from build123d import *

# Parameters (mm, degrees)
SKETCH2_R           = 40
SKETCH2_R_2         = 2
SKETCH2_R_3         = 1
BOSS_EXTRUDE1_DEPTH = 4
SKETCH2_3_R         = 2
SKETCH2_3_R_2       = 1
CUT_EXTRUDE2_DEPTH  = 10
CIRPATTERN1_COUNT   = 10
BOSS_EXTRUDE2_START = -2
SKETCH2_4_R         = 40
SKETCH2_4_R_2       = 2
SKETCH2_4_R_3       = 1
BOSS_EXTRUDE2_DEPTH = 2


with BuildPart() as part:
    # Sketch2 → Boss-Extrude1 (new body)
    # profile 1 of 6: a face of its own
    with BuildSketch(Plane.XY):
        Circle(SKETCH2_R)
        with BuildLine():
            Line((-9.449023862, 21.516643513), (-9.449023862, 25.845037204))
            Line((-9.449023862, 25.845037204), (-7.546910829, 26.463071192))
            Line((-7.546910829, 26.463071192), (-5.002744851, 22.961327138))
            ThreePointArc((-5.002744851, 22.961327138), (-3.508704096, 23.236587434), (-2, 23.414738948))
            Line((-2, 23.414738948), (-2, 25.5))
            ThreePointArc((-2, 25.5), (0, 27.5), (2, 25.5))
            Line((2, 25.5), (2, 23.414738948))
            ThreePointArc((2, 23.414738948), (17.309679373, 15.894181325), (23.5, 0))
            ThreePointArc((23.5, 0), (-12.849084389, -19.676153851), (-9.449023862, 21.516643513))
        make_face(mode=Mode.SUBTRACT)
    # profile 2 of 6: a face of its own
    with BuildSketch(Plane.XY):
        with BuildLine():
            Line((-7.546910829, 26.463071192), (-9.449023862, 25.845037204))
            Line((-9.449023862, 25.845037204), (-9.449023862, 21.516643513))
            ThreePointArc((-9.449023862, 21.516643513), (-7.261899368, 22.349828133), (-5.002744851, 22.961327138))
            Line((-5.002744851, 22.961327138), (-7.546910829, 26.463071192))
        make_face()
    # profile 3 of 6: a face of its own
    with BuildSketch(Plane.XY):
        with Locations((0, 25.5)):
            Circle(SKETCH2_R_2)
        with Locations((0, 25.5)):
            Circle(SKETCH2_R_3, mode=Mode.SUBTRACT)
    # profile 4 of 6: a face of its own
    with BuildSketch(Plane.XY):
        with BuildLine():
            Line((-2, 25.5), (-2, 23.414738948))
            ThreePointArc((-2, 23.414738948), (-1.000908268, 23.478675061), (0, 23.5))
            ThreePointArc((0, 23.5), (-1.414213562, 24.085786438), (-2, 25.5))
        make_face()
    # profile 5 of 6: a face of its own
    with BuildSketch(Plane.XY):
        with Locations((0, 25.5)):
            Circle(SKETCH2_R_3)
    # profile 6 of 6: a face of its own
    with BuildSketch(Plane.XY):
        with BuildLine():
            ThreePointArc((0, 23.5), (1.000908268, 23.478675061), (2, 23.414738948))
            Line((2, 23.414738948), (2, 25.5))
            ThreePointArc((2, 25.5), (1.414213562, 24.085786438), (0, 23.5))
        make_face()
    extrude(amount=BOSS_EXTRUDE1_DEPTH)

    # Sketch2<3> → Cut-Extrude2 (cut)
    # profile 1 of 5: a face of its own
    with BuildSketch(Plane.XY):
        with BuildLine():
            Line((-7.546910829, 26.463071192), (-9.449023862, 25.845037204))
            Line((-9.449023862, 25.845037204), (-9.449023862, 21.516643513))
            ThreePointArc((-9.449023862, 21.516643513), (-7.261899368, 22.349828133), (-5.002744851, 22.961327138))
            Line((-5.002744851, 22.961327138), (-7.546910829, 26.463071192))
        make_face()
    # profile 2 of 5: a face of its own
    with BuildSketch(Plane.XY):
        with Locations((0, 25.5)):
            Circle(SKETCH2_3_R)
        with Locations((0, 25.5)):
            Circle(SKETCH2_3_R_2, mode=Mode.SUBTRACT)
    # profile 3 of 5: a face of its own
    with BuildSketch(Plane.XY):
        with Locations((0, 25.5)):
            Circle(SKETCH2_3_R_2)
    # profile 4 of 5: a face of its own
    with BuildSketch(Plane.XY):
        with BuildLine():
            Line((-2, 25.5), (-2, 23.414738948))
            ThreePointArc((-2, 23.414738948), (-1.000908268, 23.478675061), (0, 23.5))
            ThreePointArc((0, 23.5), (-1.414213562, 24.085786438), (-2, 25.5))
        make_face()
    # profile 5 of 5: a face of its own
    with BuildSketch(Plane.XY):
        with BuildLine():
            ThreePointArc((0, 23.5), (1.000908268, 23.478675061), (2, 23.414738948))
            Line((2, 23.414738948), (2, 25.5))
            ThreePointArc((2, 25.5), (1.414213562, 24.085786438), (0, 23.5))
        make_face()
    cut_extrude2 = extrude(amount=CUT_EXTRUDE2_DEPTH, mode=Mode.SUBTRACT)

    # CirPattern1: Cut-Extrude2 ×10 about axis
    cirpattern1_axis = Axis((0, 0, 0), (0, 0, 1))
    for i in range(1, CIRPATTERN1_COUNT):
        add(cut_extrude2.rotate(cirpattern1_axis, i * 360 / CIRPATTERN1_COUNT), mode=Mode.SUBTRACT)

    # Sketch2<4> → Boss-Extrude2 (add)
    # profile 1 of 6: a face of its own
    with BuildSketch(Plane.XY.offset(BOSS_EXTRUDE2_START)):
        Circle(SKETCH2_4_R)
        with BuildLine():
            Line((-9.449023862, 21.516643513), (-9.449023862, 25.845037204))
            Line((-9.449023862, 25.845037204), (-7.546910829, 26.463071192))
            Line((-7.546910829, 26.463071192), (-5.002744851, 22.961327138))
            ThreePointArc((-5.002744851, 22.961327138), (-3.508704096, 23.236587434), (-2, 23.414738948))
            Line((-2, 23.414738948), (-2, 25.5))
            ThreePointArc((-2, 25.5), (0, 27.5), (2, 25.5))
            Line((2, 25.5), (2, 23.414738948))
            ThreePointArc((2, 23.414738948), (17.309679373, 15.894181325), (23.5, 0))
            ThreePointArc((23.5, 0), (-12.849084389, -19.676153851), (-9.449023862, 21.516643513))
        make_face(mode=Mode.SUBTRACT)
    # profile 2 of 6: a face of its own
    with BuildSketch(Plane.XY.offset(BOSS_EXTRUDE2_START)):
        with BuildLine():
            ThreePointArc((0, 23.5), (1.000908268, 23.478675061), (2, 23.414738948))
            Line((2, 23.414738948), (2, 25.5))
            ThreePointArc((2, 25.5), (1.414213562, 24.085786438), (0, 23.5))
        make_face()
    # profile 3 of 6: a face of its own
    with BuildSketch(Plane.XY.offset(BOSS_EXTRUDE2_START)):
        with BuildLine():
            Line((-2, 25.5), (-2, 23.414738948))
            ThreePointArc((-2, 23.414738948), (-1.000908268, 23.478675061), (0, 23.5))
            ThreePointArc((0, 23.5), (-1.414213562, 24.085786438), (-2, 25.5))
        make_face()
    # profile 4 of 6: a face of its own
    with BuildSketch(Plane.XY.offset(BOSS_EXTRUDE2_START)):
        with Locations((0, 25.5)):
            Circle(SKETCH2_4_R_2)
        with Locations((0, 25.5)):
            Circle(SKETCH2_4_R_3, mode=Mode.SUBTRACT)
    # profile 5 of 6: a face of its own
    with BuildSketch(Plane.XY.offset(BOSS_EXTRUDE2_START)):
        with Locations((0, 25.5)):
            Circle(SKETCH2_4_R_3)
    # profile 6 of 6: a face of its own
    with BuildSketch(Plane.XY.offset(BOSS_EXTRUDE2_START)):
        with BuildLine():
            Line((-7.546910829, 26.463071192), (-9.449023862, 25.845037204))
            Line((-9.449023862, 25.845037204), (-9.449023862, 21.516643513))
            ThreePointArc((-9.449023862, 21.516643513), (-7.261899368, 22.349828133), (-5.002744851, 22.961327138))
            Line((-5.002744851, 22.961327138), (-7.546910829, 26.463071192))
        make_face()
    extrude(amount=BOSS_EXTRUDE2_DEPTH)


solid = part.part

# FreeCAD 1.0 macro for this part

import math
import FreeCAD as App
import Part
import Sketcher

V = App.Vector
Q = App.Units.Quantity

doc = App.newDocument("Part")
params = doc.addObject("Spreadsheet::Sheet", "Params")
for row, (alias, value) in enumerate([
    ("sketch1_diameter", "80 mm"),
    ("sketch1_radius", "23.5 mm"),
    ("pad1_length", "4 mm"),
    ("sketch2_radius", "2 mm"),
    ("sketch2_radius2", "23.5 mm"),
    ("sketch2_length", "2 mm"),
    ("pocket1_length", "10 mm"),
    ("sketch3_diameter", "80 mm"),
    ("sketch3_radius", "23.5 mm"),
    ("pad2_length", "2 mm"),
], start=1):
    params.set(f"A{row}", alias)
    params.set(f"B{row}", "=" + value)
    params.setAlias(f"B{row}", alias)

body = doc.addObject("PartDesign::Body", "Body")

# Sketch on XY plane
sketch1 = body.newObject("Sketcher::SketchObject", "Sketch")
sketch1.AttachmentSupport = (doc.getObject("XY_Plane"), [""])
sketch1.MapMode = "FlatFace"
sketch1.addGeometry(Part.Circle(V(0, 0, 0), V(0, 0, 1), 40), False)
sketch1.addGeometry(Part.ArcOfCircle(Part.Circle(V(0, 0, 0), V(0, 0, 1), 23.5), math.radians(113.708657), math.radians(360)), False)
sketch1.addGeometry(Part.ArcOfCircle(Part.Circle(V(0, 0, 0), V(0, 0, 1), 23.5), math.radians(102.291343), math.radians(113.708657)), False)
sketch1.addGeometry(Part.ArcOfCircle(Part.Circle(V(0, 0, 0), V(0, 0, 1), 23.5), math.radians(94.882142), math.radians(102.291343)), False)
sketch1.addGeometry(Part.ArcOfCircle(Part.Circle(V(0, 0, 0), V(0, 0, 1), 23.5), math.radians(90), math.radians(94.882142)), False)
sketch1.addGeometry(Part.ArcOfCircle(Part.Circle(V(0, 0, 0), V(0, 0, 1), 23.5), math.radians(85.117858), math.radians(90)), False)
sketch1.addGeometry(Part.ArcOfCircle(Part.Circle(V(0, 0, 0), V(0, 0, 1), 23.5), math.radians(0), math.radians(85.117858)), False)
sketch1.addConstraint(Sketcher.Constraint("Tangent", 1, 1, 2, 2))
sketch1.addConstraint(Sketcher.Constraint("Tangent", 2, 1, 3, 2))
sketch1.addConstraint(Sketcher.Constraint("Tangent", 3, 1, 4, 2))
sketch1.addConstraint(Sketcher.Constraint("Tangent", 4, 1, 5, 2))
sketch1.addConstraint(Sketcher.Constraint("Tangent", 5, 1, 6, 2))
sketch1.addConstraint(Sketcher.Constraint("Tangent", 6, 1, 1, 2))
sketch1.addConstraint(Sketcher.Constraint("Coincident", 0, 3, -1, 1))
sketch1.addConstraint(Sketcher.Constraint("Coincident", 1, 3, -1, 1))
sketch1.addConstraint(Sketcher.Constraint("Coincident", 3, 3, -1, 1))
sketch1.addConstraint(Sketcher.Constraint("Equal", 3, 4))
sketch1.addConstraint(Sketcher.Constraint("PointOnObject", 4, 1, -2))
sketch1.addConstraint(Sketcher.Constraint("PointOnObject", 6, 1, -1))
sketch1.addConstraint(Sketcher.Constraint("Horizontal", 3, 1, 5, 1))
sketch1.addConstraint(Sketcher.Constraint("Diameter", 0, Q("80 mm")))
sketch1.addConstraint(Sketcher.Constraint("Radius", 1, Q("23.5 mm")))
sketch1.addConstraint(Sketcher.Constraint("DistanceX", 3, 1, -1, 1, Q("2 mm")))
sketch1.addConstraint(Sketcher.Constraint("DistanceX", 1, 1, 2, 1, Q("4.446279 mm")))
sketch1.addConstraint(Sketcher.Constraint("DistanceY", 2, 1, 3, 1, Q("0.453412 mm")))
sketch1.setExpression("Constraints[13]", "Params.sketch1_diameter")
sketch1.setExpression("Constraints[14]", "Params.sketch1_radius")
pad1 = body.newObject("PartDesign::Pad", "Pad")
pad1.Profile = sketch1
pad1.setExpression("Length", "Params.pad1_length")

# Sketch on XY plane
sketch2 = body.newObject("Sketcher::SketchObject", "Sketch001")
sketch2.AttachmentSupport = (doc.getObject("XY_Plane"), [""])
sketch2.MapMode = "FlatFace"
sketch2.addGeometry(Part.LineSegment(V(-7.546911, 26.463071, 0), V(-9.449024, 25.845037, 0)), False)
sketch2.addGeometry(Part.LineSegment(V(-9.449024, 25.845037, 0), V(-9.449024, 21.516644, 0)), False)
sketch2.addGeometry(Part.ArcOfCircle(Part.Circle(V(0, 0, 0), V(0, 0, 1), 23.5), math.radians(102.291343), math.radians(113.708657)), False)
sketch2.addGeometry(Part.LineSegment(V(-5.002745, 22.961327, 0), V(-7.546911, 26.463071, 0)), False)
sketch2.addGeometry(Part.ArcOfCircle(Part.Circle(V(0, 25.5, 0), V(0, 0, 1), 2), math.radians(0), math.radians(180)), False)
sketch2.addGeometry(Part.LineSegment(V(-2, 25.5, 0), V(-2, 23.414739, 0)), False)
sketch2.addGeometry(Part.ArcOfCircle(Part.Circle(V(0, 0, 0), V(0, 0, 1), 23.5), math.radians(90), math.radians(94.882142)), False)
sketch2.addGeometry(Part.ArcOfCircle(Part.Circle(V(0, 0, 0), V(0, 0, 1), 23.5), math.radians(85.117858), math.radians(90)), False)
sketch2.addGeometry(Part.LineSegment(V(2, 23.414739, 0), V(2, 25.5, 0)), False)
sketch2.addConstraint(Sketcher.Constraint("Coincident", 0, 2, 1, 1))
sketch2.addConstraint(Sketcher.Constraint("Coincident", 1, 2, 2, 2))
sketch2.addConstraint(Sketcher.Constraint("Coincident", 2, 1, 3, 1))
sketch2.addConstraint(Sketcher.Constraint("Coincident", 3, 2, 0, 1))
sketch2.addConstraint(Sketcher.Constraint("Tangent", 4, 2, 5, 1))
sketch2.addConstraint(Sketcher.Constraint("Coincident", 5, 2, 6, 2))
sketch2.addConstraint(Sketcher.Constraint("Tangent", 6, 1, 7, 2))
sketch2.addConstraint(Sketcher.Constraint("Coincident", 7, 1, 8, 1))
sketch2.addConstraint(Sketcher.Constraint("Tangent", 8, 2, 4, 1))
sketch2.addConstraint(Sketcher.Constraint("Vertical", 1))
sketch2.addConstraint(Sketcher.Constraint("Vertical", 5))
sketch2.addConstraint(Sketcher.Constraint("Vertical", 8))
sketch2.addConstraint(Sketcher.Constraint("Coincident", 2, 3, -1, 1))
sketch2.addConstraint(Sketcher.Constraint("Coincident", 6, 3, -1, 1))
sketch2.addConstraint(Sketcher.Constraint("Equal", 2, 6))
sketch2.addConstraint(Sketcher.Constraint("Equal", 6, 7))
sketch2.addConstraint(Sketcher.Constraint("PointOnObject", 4, 3, -2))
sketch2.addConstraint(Sketcher.Constraint("PointOnObject", 6, 1, -2))
sketch2.addConstraint(Sketcher.Constraint("Radius", 4, Q("2 mm")))
sketch2.addConstraint(Sketcher.Constraint("Radius", 2, Q("23.5 mm")))
sketch2.addConstraint(Sketcher.Constraint("Angle", 0, Q("-162 deg")))
sketch2.addConstraint(Sketcher.Constraint("Angle", 3, Q("126 deg")))
sketch2.addConstraint(Sketcher.Constraint("Distance", 0, Q("2 mm")))
sketch2.addConstraint(Sketcher.Constraint("DistanceY", 6, 1, 4, 3, Q("2 mm")))
sketch2.addConstraint(Sketcher.Constraint("DistanceY", 1, 2, 1, 1, Q("4.328394 mm")))
sketch2.addConstraint(Sketcher.Constraint("DistanceX", 3, 2, -1, 1, Q("7.546911 mm")))
sketch2.setExpression("Constraints[18]", "Params.sketch2_radius")
sketch2.setExpression("Constraints[19]", "Params.sketch2_radius2")
sketch2.setExpression("Constraints[22]", "Params.sketch2_length")
pocket1 = body.newObject("PartDesign::Pocket", "Pocket")
pocket1.Profile = sketch2
pocket1.setExpression("Length", "Params.pocket1_length")
pocket1.Reversed = True
doc.recompute()

polarpattern = body.newObject("PartDesign::PolarPattern", "PolarPattern")
polarpattern.Originals = [pocket1]
polarpattern.Axis = (doc.getObject("Z_Axis"), [""])
polarpattern.Angle = 360
polarpattern.Occurrences = 10
body.Tip = polarpattern

# Sketch on XY plane
sketch3 = body.newObject("Sketcher::SketchObject", "Sketch002")
sketch3.AttachmentSupport = (doc.getObject("XY_Plane"), [""])
sketch3.MapMode = "FlatFace"
sketch3.AttachmentOffset = App.Placement(V(0, 0, -2), App.Rotation())
sketch3.addGeometry(Part.Circle(V(0, 0, 0), V(0, 0, 1), 40), False)
sketch3.addGeometry(Part.ArcOfCircle(Part.Circle(V(0, 0, 0), V(0, 0, 1), 23.5), math.radians(113.708657), math.radians(360)), False)
sketch3.addGeometry(Part.ArcOfCircle(Part.Circle(V(0, 0, 0), V(0, 0, 1), 23.5), math.radians(102.291343), math.radians(113.708657)), False)
sketch3.addGeometry(Part.ArcOfCircle(Part.Circle(V(0, 0, 0), V(0, 0, 1), 23.5), math.radians(94.882142), math.radians(102.291343)), False)
sketch3.addGeometry(Part.ArcOfCircle(Part.Circle(V(0, 0, 0), V(0, 0, 1), 23.5), math.radians(90), math.radians(94.882142)), False)
sketch3.addGeometry(Part.ArcOfCircle(Part.Circle(V(0, 0, 0), V(0, 0, 1), 23.5), math.radians(85.117858), math.radians(90)), False)
sketch3.addGeometry(Part.ArcOfCircle(Part.Circle(V(0, 0, 0), V(0, 0, 1), 23.5), math.radians(0), math.radians(85.117858)), False)
sketch3.addConstraint(Sketcher.Constraint("Tangent", 1, 1, 2, 2))
sketch3.addConstraint(Sketcher.Constraint("Tangent", 2, 1, 3, 2))
sketch3.addConstraint(Sketcher.Constraint("Tangent", 3, 1, 4, 2))
sketch3.addConstraint(Sketcher.Constraint("Tangent", 4, 1, 5, 2))
sketch3.addConstraint(Sketcher.Constraint("Tangent", 5, 1, 6, 2))
sketch3.addConstraint(Sketcher.Constraint("Tangent", 6, 1, 1, 2))
sketch3.addConstraint(Sketcher.Constraint("Coincident", 0, 3, -1, 1))
sketch3.addConstraint(Sketcher.Constraint("Coincident", 1, 3, -1, 1))
sketch3.addConstraint(Sketcher.Constraint("Coincident", 3, 3, -1, 1))
sketch3.addConstraint(Sketcher.Constraint("Equal", 3, 4))
sketch3.addConstraint(Sketcher.Constraint("PointOnObject", 4, 1, -2))
sketch3.addConstraint(Sketcher.Constraint("PointOnObject", 6, 1, -1))
sketch3.addConstraint(Sketcher.Constraint("Horizontal", 3, 1, 5, 1))
sketch3.addConstraint(Sketcher.Constraint("Diameter", 0, Q("80 mm")))
sketch3.addConstraint(Sketcher.Constraint("Radius", 1, Q("23.5 mm")))
sketch3.addConstraint(Sketcher.Constraint("DistanceX", 3, 1, -1, 1, Q("2 mm")))
sketch3.addConstraint(Sketcher.Constraint("DistanceX", 1, 1, 2, 1, Q("4.446279 mm")))
sketch3.addConstraint(Sketcher.Constraint("DistanceY", 2, 1, 3, 1, Q("0.453412 mm")))
sketch3.setExpression("Constraints[13]", "Params.sketch3_diameter")
sketch3.setExpression("Constraints[14]", "Params.sketch3_radius")
pad2 = body.newObject("PartDesign::Pad", "Pad001")
pad2.Profile = sketch3
pad2.setExpression("Length", "Params.pad2_length")

doc.recompute()
